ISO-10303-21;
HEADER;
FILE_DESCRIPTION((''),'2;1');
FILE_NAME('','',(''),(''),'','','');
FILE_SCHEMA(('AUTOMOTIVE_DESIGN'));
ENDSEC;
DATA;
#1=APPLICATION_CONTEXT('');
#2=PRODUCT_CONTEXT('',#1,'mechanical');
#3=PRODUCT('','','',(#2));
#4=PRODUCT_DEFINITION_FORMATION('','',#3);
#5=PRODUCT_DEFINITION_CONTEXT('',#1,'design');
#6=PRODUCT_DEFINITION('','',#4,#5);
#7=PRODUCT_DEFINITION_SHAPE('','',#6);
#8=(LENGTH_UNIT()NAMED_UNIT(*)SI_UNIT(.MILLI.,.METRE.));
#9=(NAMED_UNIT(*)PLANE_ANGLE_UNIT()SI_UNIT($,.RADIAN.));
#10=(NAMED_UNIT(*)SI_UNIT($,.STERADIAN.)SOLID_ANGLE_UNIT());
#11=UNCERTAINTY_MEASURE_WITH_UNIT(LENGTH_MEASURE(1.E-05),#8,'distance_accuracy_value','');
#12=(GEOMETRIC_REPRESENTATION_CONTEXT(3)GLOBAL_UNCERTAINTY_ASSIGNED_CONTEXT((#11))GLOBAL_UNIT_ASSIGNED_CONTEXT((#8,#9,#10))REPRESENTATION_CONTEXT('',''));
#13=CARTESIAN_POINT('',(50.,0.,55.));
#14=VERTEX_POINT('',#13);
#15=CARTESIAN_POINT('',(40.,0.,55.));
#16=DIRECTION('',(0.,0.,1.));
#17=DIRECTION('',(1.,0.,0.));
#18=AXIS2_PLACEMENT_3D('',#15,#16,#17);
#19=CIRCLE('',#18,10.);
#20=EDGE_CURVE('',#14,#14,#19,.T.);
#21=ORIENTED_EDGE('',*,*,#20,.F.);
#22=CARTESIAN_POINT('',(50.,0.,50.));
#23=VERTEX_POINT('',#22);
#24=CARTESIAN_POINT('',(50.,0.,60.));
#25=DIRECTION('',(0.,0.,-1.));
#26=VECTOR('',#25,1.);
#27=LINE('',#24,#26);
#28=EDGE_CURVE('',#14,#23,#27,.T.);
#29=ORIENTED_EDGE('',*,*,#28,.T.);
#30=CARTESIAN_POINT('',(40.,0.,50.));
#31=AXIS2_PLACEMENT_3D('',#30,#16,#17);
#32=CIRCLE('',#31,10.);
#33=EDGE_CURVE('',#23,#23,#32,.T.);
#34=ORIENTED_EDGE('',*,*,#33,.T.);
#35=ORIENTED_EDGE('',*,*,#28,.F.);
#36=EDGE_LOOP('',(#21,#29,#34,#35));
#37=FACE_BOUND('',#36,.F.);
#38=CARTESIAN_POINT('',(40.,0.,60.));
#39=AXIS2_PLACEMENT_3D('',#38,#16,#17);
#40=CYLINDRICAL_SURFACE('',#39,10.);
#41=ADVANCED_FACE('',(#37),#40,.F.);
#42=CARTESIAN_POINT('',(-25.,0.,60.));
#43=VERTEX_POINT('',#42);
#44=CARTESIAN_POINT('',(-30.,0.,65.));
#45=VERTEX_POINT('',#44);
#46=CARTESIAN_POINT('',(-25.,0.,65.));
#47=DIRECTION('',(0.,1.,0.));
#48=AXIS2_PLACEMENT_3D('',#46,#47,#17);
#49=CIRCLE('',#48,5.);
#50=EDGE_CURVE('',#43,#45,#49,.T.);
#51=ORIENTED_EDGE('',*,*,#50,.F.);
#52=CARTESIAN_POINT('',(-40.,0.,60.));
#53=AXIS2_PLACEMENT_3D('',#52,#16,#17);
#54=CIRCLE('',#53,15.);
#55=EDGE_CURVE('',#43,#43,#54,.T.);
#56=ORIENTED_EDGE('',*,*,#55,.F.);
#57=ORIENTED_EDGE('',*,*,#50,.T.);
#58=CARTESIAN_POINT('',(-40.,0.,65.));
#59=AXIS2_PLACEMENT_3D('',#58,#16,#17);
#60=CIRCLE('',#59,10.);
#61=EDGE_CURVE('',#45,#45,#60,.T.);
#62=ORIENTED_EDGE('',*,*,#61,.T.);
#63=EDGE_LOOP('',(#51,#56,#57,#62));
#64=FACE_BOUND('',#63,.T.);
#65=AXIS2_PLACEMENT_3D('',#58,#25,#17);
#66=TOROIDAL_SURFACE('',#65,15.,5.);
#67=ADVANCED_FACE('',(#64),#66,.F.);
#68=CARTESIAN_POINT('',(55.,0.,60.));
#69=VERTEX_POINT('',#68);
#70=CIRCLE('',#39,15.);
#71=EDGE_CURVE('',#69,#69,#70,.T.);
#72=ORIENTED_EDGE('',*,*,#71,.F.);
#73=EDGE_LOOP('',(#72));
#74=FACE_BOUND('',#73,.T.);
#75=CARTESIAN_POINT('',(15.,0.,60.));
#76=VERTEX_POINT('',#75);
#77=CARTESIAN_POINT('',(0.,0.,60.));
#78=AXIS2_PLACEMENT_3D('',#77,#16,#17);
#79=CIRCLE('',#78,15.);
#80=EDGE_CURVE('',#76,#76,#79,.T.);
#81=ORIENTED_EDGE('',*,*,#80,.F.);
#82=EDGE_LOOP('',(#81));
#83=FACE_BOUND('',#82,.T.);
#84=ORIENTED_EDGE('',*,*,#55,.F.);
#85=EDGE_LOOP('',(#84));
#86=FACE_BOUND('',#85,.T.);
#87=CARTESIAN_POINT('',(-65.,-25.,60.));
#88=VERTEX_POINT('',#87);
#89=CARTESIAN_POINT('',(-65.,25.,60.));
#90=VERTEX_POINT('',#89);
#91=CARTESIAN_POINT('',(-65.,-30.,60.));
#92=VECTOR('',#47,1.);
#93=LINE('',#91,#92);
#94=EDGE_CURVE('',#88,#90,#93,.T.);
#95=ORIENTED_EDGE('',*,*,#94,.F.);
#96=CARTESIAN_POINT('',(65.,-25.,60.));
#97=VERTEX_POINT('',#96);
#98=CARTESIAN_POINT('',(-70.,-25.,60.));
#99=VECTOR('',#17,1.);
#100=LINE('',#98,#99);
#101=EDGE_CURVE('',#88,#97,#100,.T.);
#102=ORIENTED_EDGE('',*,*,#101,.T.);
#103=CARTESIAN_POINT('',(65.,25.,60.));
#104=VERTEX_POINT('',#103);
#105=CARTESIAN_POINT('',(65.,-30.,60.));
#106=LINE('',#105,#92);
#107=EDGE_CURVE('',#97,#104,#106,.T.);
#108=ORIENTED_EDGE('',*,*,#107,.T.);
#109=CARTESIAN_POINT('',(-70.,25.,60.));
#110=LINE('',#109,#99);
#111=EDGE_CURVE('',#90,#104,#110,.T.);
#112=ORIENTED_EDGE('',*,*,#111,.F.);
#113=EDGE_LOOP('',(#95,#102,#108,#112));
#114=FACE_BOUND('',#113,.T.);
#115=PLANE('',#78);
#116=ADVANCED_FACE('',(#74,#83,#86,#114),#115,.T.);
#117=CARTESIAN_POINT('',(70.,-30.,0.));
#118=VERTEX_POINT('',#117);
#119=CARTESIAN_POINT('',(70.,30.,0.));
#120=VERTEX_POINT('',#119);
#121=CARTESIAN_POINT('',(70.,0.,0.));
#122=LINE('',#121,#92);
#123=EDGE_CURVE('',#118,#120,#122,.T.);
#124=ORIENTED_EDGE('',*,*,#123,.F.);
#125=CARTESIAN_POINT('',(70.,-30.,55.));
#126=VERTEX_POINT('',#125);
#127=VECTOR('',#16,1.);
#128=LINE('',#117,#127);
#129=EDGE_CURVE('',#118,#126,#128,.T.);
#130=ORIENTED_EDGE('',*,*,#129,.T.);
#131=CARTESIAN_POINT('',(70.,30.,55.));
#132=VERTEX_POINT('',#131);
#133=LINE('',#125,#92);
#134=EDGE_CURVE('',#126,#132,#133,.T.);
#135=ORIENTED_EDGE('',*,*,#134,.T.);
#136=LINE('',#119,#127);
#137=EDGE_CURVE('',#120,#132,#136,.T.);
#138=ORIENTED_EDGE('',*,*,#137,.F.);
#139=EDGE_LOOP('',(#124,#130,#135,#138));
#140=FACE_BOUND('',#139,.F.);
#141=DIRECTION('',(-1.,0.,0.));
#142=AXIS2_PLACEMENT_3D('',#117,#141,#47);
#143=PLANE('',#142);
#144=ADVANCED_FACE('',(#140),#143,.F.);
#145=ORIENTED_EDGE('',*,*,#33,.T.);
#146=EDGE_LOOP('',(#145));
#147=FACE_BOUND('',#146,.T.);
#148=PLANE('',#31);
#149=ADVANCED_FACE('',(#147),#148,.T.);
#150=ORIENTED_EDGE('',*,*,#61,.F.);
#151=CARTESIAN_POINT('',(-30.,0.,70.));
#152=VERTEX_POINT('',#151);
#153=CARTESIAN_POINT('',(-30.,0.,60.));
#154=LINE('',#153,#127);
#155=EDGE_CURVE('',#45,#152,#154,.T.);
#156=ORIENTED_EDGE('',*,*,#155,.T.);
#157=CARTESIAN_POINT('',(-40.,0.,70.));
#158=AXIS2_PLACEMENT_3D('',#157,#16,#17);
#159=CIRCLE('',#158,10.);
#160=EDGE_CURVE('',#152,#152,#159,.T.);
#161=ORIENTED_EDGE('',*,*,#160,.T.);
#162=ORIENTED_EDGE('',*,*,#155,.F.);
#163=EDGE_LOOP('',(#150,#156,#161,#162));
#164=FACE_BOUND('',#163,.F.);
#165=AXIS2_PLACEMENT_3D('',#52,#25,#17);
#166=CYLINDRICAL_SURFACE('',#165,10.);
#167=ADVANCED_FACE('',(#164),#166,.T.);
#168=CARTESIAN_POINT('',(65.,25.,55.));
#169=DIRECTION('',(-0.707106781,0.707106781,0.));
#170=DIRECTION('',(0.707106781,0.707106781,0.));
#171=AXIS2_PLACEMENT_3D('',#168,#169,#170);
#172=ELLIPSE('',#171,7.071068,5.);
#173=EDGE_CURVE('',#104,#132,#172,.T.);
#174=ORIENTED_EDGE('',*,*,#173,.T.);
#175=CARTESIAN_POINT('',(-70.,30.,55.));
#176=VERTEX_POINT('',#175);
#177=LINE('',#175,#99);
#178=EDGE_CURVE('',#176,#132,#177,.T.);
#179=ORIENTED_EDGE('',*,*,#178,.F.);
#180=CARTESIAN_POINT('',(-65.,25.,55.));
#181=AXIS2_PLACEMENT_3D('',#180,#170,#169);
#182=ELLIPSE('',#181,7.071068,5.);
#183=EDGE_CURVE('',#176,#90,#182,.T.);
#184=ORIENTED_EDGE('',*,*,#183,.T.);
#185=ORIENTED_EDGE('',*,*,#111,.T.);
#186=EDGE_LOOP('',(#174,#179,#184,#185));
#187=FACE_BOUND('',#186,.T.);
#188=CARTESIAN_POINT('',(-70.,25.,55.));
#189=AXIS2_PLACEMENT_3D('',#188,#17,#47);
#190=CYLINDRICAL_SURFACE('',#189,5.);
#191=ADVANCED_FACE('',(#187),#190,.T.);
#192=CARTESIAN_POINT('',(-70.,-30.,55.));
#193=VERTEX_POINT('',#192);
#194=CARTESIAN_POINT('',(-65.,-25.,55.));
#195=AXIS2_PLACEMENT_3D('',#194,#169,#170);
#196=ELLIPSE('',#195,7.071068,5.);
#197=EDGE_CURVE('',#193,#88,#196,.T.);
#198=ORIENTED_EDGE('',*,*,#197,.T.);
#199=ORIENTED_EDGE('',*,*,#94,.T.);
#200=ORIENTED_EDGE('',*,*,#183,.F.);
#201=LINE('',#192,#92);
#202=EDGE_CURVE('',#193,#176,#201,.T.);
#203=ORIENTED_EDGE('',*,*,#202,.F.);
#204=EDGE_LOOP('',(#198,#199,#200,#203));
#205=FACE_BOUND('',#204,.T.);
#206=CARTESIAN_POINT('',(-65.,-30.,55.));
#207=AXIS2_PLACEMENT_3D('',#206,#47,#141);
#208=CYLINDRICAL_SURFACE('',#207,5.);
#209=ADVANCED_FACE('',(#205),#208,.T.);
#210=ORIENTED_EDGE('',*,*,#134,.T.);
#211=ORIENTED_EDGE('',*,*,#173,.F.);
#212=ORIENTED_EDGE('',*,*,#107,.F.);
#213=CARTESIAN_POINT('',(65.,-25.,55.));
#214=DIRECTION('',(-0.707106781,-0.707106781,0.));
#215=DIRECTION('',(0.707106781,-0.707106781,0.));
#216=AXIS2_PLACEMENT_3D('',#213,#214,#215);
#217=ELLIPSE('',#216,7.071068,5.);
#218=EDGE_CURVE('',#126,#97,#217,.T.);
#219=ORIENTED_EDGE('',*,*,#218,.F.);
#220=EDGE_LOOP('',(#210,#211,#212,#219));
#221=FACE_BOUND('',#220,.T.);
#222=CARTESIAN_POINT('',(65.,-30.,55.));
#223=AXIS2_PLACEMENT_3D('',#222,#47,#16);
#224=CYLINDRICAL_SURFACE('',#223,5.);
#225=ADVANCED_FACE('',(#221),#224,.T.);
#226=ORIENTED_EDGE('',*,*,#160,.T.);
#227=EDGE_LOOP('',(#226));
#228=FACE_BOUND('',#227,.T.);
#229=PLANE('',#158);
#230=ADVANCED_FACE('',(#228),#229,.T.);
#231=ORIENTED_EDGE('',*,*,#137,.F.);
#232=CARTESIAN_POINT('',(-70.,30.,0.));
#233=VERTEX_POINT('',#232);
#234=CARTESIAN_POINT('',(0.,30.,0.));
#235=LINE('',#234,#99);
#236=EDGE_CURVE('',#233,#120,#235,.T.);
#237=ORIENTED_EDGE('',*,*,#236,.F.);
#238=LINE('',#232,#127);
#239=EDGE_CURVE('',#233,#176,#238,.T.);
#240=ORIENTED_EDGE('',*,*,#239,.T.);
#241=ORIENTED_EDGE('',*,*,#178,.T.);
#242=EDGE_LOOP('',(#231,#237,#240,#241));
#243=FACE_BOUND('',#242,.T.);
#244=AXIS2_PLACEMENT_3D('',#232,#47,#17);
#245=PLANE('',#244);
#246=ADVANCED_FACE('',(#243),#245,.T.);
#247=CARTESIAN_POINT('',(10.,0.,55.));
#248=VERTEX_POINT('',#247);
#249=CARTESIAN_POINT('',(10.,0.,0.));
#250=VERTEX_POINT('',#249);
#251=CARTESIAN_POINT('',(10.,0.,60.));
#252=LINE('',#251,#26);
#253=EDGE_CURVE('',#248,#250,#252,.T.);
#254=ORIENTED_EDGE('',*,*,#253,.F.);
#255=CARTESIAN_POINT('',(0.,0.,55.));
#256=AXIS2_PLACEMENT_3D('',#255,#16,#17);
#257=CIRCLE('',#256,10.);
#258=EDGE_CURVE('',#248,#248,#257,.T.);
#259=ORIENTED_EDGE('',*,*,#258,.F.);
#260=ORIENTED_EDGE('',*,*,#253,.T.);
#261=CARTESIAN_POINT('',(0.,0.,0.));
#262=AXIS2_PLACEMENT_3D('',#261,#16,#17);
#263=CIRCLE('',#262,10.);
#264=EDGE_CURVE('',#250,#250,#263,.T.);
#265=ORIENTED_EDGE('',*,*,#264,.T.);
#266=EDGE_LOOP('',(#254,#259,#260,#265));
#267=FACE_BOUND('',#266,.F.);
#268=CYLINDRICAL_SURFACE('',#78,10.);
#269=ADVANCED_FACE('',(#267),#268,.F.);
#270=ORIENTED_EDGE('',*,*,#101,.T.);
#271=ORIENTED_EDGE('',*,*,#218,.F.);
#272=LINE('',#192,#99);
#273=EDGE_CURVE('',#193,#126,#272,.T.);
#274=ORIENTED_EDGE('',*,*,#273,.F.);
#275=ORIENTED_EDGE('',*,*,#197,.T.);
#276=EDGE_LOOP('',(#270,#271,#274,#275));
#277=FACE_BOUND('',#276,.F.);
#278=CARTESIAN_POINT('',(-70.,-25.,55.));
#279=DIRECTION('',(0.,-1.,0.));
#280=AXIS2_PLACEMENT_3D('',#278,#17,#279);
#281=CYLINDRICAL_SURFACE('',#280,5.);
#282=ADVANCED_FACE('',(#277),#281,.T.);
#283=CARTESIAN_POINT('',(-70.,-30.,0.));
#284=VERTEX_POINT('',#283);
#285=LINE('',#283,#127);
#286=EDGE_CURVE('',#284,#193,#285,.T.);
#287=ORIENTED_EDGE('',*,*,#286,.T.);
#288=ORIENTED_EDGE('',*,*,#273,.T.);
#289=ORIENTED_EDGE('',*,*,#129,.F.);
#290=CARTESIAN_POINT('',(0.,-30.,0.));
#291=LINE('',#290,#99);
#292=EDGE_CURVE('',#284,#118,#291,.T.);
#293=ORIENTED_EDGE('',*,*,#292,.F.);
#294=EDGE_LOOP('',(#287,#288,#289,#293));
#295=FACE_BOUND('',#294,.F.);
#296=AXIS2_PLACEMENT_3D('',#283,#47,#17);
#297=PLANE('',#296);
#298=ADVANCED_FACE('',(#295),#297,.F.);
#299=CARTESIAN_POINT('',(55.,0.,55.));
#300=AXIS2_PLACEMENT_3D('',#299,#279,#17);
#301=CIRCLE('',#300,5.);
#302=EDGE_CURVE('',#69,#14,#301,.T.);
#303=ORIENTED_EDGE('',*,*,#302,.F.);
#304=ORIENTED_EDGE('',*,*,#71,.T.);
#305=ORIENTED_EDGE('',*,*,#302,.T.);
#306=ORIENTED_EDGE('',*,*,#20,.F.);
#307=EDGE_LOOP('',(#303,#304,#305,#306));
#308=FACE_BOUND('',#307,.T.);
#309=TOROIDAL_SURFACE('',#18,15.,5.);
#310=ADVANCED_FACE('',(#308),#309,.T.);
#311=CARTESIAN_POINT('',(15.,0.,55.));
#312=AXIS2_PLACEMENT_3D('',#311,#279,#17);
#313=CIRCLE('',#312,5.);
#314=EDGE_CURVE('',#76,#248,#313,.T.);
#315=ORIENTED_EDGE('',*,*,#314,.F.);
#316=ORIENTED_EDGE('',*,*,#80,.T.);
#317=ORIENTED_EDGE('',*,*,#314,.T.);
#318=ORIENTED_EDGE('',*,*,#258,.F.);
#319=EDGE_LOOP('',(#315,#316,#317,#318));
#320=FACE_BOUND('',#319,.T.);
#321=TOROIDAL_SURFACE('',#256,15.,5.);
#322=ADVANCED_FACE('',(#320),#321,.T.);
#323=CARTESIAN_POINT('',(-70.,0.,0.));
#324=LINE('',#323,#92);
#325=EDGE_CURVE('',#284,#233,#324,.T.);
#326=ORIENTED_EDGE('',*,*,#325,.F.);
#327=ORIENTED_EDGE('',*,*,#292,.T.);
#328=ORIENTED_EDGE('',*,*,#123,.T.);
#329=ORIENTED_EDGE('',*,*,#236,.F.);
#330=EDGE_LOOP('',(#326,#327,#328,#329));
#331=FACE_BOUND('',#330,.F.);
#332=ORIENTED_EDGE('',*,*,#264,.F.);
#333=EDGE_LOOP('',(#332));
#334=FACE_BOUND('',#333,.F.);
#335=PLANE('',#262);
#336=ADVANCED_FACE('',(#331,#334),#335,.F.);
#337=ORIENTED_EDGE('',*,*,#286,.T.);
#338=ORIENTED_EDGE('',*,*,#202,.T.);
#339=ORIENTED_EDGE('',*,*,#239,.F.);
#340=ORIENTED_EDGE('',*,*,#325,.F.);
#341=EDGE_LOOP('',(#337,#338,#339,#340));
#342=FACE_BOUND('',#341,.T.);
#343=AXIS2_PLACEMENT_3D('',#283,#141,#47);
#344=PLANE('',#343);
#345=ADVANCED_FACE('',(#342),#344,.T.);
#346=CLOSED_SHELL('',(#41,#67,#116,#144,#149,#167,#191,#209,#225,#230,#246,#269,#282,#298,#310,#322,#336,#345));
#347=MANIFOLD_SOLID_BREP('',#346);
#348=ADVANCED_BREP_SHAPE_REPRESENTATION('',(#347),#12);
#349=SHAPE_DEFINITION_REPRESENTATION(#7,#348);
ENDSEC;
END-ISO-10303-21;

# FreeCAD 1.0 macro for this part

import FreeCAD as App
import Part
import Sketcher


def edges_at(feature, points):
    """Names of the edges that pass closest to the given points."""
    edges = feature.Shape.Edges
    near = lambda p: min(range(len(edges)), key=lambda i: edges[i].distToShape(Part.Vertex(*p))[0])
    return sorted({f"Edge{near(p) + 1}" for p in points})

doc = App.newDocument("Part")
body = doc.addObject("PartDesign::Body", "Body")

# Sketch on XY plane
sketch1 = body.newObject("Sketcher::SketchObject", "Sketch")
sketch1.AttachmentSupport = (doc.getObject("XY_Plane"), [""])
sketch1.MapMode = "FlatFace"
sketch1.addGeometry([
    Part.LineSegment(App.Vector(-70, 30, 0), App.Vector(-70, -30, 0)),
    Part.LineSegment(App.Vector(-70, -30, 0), App.Vector(70, -30, 0)),
    Part.LineSegment(App.Vector(70, -30, 0), App.Vector(70, 30, 0)),
    Part.LineSegment(App.Vector(70, 30, 0), App.Vector(-70, 30, 0)),
], False)
sketch1.addConstraint([
    Sketcher.Constraint("Coincident", 0, 2, 1, 1),
    Sketcher.Constraint("Coincident", 1, 2, 2, 1),
    Sketcher.Constraint("Coincident", 2, 2, 3, 1),
    Sketcher.Constraint("Coincident", 3, 2, 0, 1),
    Sketcher.Constraint("Vertical", 0),
    Sketcher.Constraint("Horizontal", 1),
    Sketcher.Constraint("Vertical", 2),
    Sketcher.Constraint("Horizontal", 3),
    Sketcher.Constraint("Symmetric", 0, 2, 2, 2, -1, 1),
    Sketcher.Constraint("DistanceX", 1, 1, 1, 2, 140.0),
    Sketcher.Constraint("DistanceY", 0, 2, 0, 1, 60.0),
])
pad1 = body.newObject("PartDesign::Pad", "Pad")
pad1.Profile = sketch1
pad1.Length = 60

# Sketch on XY plane
sketch2 = body.newObject("Sketcher::SketchObject", "Sketch001")
sketch2.AttachmentSupport = (doc.getObject("XY_Plane"), [""])
sketch2.MapMode = "FlatFace"
sketch2.AttachmentOffset = App.Placement(App.Vector(0, 0, 60), App.Rotation())
sketch2.addGeometry(Part.Circle(App.Vector(-40, 0, 0), App.Vector(0, 0, 1), 10), False)
sketch2.addConstraint([
    Sketcher.Constraint("PointOnObject", 0, 3, -1),
    Sketcher.Constraint("Diameter", 0, 20.0),
    Sketcher.Constraint("DistanceX", 0, 3, -1, 1, 40.0),
])
pad2 = body.newObject("PartDesign::Pad", "Pad001")
pad2.Profile = sketch2
pad2.Length = 10

# Sketch on XY plane
sketch3 = body.newObject("Sketcher::SketchObject", "Sketch002")
sketch3.AttachmentSupport = (doc.getObject("XY_Plane"), [""])
sketch3.MapMode = "FlatFace"
sketch3.AttachmentOffset = App.Placement(App.Vector(0, 0, 60), App.Rotation())
sketch3.addGeometry(Part.Circle(App.Vector(40, 0, 0), App.Vector(0, 0, 1), 10), False)
sketch3.addConstraint([
    Sketcher.Constraint("PointOnObject", 0, 3, -1),
    Sketcher.Constraint("Diameter", 0, 20.0),
    Sketcher.Constraint("DistanceX", -1, 1, 0, 3, 40.0),
])
pocket1 = body.newObject("PartDesign::Pocket", "Pocket")
pocket1.Profile = sketch3
pocket1.Length = 10

# Sketch on XY plane
sketch4 = body.newObject("Sketcher::SketchObject", "Sketch003")
sketch4.AttachmentSupport = (doc.getObject("XY_Plane"), [""])
sketch4.MapMode = "FlatFace"
sketch4.AttachmentOffset = App.Placement(App.Vector(0, 0, 60), App.Rotation())
sketch4.addGeometry(Part.Circle(App.Vector(0, 0, 0), App.Vector(0, 0, 1), 10), False)
sketch4.addConstraint([
    Sketcher.Constraint("Coincident", 0, 3, -1, 1),
    Sketcher.Constraint("Diameter", 0, 20.0),
])
pocket2 = body.newObject("PartDesign::Pocket", "Pocket001")
pocket2.Profile = sketch4
pocket2.Length = 79.5
doc.recompute()

fillet = body.newObject("PartDesign::Fillet", "Fillet")
fillet.Base = (pocket2, edges_at(pocket2, [
    (-70, 0, 60),
    (0, -30, 60),
    (70, 0, 60),
    (0, 30, 60),
    (-50, 0, 60),
    (-10, 0, 60),
    (30, 0, 60),
]))
fillet.Radius = 5

doc.recompute()
